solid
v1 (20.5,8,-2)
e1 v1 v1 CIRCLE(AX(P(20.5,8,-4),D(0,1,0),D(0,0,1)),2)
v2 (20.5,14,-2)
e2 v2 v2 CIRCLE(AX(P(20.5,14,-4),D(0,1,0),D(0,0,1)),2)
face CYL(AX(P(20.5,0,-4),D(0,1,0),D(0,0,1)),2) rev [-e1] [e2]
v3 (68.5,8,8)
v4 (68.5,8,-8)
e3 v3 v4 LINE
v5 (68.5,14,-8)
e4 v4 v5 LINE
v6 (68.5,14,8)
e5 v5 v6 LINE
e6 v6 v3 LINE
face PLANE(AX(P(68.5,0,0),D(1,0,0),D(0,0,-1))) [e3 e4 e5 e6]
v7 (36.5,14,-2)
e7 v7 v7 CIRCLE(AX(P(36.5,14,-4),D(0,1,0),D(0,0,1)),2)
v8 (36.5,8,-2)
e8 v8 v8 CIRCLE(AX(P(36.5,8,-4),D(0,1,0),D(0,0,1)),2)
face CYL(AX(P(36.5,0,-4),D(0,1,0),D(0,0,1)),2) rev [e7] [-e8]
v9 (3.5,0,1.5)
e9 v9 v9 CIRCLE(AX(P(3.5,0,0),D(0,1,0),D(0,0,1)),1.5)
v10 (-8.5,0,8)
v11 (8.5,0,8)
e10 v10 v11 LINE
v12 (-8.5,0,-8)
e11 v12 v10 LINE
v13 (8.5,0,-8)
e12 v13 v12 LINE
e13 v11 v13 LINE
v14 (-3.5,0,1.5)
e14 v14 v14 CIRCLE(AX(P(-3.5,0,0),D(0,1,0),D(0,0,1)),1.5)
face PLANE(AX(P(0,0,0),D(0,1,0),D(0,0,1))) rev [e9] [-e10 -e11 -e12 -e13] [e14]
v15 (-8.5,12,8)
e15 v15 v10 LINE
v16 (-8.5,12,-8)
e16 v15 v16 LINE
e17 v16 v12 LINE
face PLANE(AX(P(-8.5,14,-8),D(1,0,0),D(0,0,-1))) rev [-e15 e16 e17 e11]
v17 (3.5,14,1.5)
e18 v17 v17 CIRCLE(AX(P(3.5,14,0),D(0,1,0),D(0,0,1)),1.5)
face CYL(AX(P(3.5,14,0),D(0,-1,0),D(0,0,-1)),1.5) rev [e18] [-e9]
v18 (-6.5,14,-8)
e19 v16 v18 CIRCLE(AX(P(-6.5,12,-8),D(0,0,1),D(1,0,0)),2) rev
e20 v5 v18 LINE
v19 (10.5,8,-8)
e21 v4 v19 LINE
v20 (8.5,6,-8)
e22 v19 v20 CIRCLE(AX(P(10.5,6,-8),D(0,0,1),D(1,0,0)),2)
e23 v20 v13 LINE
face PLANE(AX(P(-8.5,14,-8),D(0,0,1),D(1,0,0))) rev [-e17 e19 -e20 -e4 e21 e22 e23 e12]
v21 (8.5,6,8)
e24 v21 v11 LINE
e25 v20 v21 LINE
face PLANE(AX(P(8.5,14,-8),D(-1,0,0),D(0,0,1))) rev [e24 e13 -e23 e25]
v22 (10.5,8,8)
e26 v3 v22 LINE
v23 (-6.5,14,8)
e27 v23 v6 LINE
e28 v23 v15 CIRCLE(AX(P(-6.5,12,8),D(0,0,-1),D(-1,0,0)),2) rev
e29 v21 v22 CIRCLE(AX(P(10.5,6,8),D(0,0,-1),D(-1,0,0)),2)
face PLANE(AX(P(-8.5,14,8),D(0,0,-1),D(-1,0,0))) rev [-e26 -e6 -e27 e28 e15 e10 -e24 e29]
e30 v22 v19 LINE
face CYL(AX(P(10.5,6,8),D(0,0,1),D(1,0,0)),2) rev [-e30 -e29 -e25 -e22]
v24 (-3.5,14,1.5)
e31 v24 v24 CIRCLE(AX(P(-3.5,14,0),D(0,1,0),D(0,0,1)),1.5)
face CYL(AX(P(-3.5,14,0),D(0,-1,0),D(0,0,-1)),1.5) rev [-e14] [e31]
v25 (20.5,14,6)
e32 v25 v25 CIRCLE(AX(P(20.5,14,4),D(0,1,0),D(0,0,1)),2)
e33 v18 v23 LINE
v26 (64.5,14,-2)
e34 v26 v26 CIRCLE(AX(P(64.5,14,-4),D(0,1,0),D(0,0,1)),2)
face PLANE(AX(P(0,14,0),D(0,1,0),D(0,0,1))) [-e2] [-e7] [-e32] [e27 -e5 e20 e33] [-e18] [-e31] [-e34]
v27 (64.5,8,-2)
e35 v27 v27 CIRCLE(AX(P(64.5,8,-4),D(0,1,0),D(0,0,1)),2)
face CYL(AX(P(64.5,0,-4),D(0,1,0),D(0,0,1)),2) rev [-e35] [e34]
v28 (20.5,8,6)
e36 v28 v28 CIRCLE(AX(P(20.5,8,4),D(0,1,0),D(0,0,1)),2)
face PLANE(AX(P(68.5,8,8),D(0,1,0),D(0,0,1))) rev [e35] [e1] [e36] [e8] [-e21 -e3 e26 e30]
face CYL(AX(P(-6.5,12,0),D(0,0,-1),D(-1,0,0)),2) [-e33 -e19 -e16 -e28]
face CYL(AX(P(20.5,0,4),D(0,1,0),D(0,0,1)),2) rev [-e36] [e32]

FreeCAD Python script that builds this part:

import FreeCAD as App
import Part
import Sketcher
Q = App.Units.Quantity


def edges_at(feature, points):
    """Names of the edges that pass closest to the given points."""
    edges = feature.Shape.Edges
    near = lambda p: min(range(len(edges)), key=lambda i: edges[i].distToShape(Part.Vertex(*p))[0])
    return sorted({f"Edge{near(p) + 1}" for p in points})

doc = App.newDocument("Part")
params = doc.addObject("Spreadsheet::Sheet", "Params")
for row, (alias, value) in enumerate([
    ("sketch1_diameter", "3 mm"),
    ("sketch1_width", "17 mm"),
    ("sketch1_height", "16 mm"),
    ("pad1_length", "14 mm"),
    ("sketch2_width", "6 mm"),
    ("sketch2_height", "16 mm"),
    ("pad2_length", "60 mm"),
    ("sketch3_diameter", "4 mm"),
    ("fillet_radius", "2 mm"),
    ("fillet2_radius", "2 mm"),
], start=1):
    params.set(f"A{row}", alias)
    params.set(f"B{row}", "=" + value)
    params.setAlias(f"B{row}", alias)

body = doc.addObject("PartDesign::Body", "Body")

# Sketch on XZ plane
sketch1 = doc.addObject("Sketcher::SketchObject", "Sketch")
body.addObject(sketch1)
sketch1.AttachmentSupport = (doc.XZ_Plane, [""])
sketch1.MapMode = "FlatFace"
sketch1.addGeometry([
    Part.LineSegment(App.Vector(-8.5, -8, 0), App.Vector(-8.5, 8, 0)),  # 0
    Part.LineSegment(App.Vector(-8.5, 8, 0), App.Vector(8.5, 8, 0)),  # 1
    Part.LineSegment(App.Vector(8.5, 8, 0), App.Vector(8.5, -8, 0)),  # 2
    Part.LineSegment(App.Vector(8.5, -8, 0), App.Vector(-8.5, -8, 0)),  # 3
    Part.Circle(App.Vector(-3.5, 0, 0), App.Vector(0, 0, 1), 1.5),  # 4
    Part.Circle(App.Vector(3.5, 0, 0), App.Vector(0, 0, 1), 1.5),  # 5
], False)
sketch1.addConstraint([
    Sketcher.Constraint("Coincident", 0, 2, 1, 1),
    Sketcher.Constraint("Coincident", 1, 2, 2, 1),
    Sketcher.Constraint("Coincident", 2, 2, 3, 1),
    Sketcher.Constraint("Coincident", 3, 2, 0, 1),
    Sketcher.Constraint("Vertical", 0),
    Sketcher.Constraint("Horizontal", 1),
    Sketcher.Constraint("Vertical", 2),
    Sketcher.Constraint("Horizontal", 3),
    Sketcher.Constraint("Equal", 4, 5),
    Sketcher.Constraint("Symmetric", 4, 3, 5, 3, -1, 1),
    Sketcher.Constraint("Symmetric", 0, 2, 2, 2, -1, 1),
    Sketcher.Constraint("PointOnObject", 4, 3, -1),
    Sketcher.Constraint("Diameter", 4, Q("3 mm")),
    Sketcher.Constraint("DistanceX", 1, 1, 1, 2, Q("17 mm")),
    Sketcher.Constraint("DistanceY", 0, 1, 0, 2, Q("16 mm")),
    Sketcher.Constraint("DistanceX", 4, 3, 5, 3, Q("7 mm")),
])
sketch1.setExpression("Constraints[12]", "Params.sketch1_diameter")
sketch1.setExpression("Constraints[13]", "Params.sketch1_width")
sketch1.setExpression("Constraints[14]", "Params.sketch1_height")
pad1 = doc.addObject("PartDesign::Pad", "Pad")
body.addObject(pad1)
pad1.Profile = sketch1
pad1.setExpression("Length", "Params.pad1_length")
pad1.Reversed = True

# Sketch on YZ plane
sketch2 = doc.addObject("Sketcher::SketchObject", "Sketch001")
body.addObject(sketch2)
sketch2.AttachmentSupport = (doc.YZ_Plane, [""])
sketch2.MapMode = "FlatFace"
sketch2.AttachmentOffset = App.Placement(App.Vector(0, 0, 8.5), App.Rotation())
sketch2.addGeometry([
    Part.LineSegment(App.Vector(14, 8, 0), App.Vector(8, 8, 0)),
    Part.LineSegment(App.Vector(8, 8, 0), App.Vector(8, -8, 0)),
    Part.LineSegment(App.Vector(8, -8, 0), App.Vector(14, -8, 0)),
    Part.LineSegment(App.Vector(14, -8, 0), App.Vector(14, 8, 0)),
], False)
sketch2.addConstraint([
    Sketcher.Constraint("Coincident", 0, 2, 1, 1),
    Sketcher.Constraint("Coincident", 1, 2, 2, 1),
    Sketcher.Constraint("Coincident", 2, 2, 3, 1),
    Sketcher.Constraint("Coincident", 3, 2, 0, 1),
    Sketcher.Constraint("Horizontal", 0),
    Sketcher.Constraint("Vertical", 1),
    Sketcher.Constraint("Horizontal", 2),
    Sketcher.Constraint("Vertical", 3),
    Sketcher.Constraint("DistanceX", 0, 2, 0, 1, Q("6 mm")),
    Sketcher.Constraint("DistanceY", 1, 2, 1, 1, Q("16 mm")),
    Sketcher.Constraint("DistanceX", -1, 1, 0, 2, Q("8 mm")),
    Sketcher.Constraint("DistanceY", -1, 1, 0, 2, Q("8 mm")),
])
sketch2.setExpression("Constraints[8]", "Params.sketch2_width")
sketch2.setExpression("Constraints[9]", "Params.sketch2_height")
pad2 = doc.addObject("PartDesign::Pad", "Pad001")
body.addObject(pad2)
pad2.Profile = sketch2
pad2.setExpression("Length", "Params.pad2_length")

# Sketch on XZ plane
sketch3 = doc.addObject("Sketcher::SketchObject", "Sketch002")
body.addObject(sketch3)
sketch3.AttachmentSupport = (doc.XZ_Plane, [""])
sketch3.MapMode = "FlatFace"
sketch3.AttachmentOffset = App.Placement(App.Vector(0, 0, -14), App.Rotation())
sketch3.addGeometry([
    Part.Circle(App.Vector(36.5, -4, 0), App.Vector(0, 0, 1), 2),
    Part.Circle(App.Vector(64.5, -4, 0), App.Vector(0, 0, 1), 2),
    Part.Circle(App.Vector(20.5, -4, 0), App.Vector(0, 0, 1), 2),
    Part.Circle(App.Vector(20.5, 4, 0), App.Vector(0, 0, 1), 2),
], False)
sketch3.addConstraint([
    Sketcher.Constraint("Equal", 0, 1),
    Sketcher.Constraint("Equal", 1, 2),
    Sketcher.Constraint("Equal", 2, 3),
    Sketcher.Constraint("Symmetric", 2, 3, 3, 3, -1),
    Sketcher.Constraint("Horizontal", 0, 3, 1, 3),
    Sketcher.Constraint("Horizontal", 1, 3, 2, 3),
    Sketcher.Constraint("Diameter", 0, Q("4 mm")),
    Sketcher.Constraint("DistanceY", 0, 3, -1, 1, Q("4 mm")),
    Sketcher.Constraint("DistanceX", 0, 3, 1, 3, Q("28 mm")),
    Sketcher.Constraint("DistanceX", 2, 3, 0, 3, Q("16 mm")),
    Sketcher.Constraint("DistanceX", -1, 1, 0, 3, Q("36.5 mm")),
])
sketch3.setExpression("Constraints[6]", "Params.sketch3_diameter")
pocket1 = doc.addObject("PartDesign::Pocket", "Pocket")
body.addObject(pocket1)
pocket1.Profile = sketch3
pocket1.Type = "ThroughAll"
pocket1.Reversed = True
doc.recompute()

fillet = doc.addObject("PartDesign::Fillet", "Fillet")
body.addObject(fillet)
fillet.Base = (pocket1, edges_at(pocket1, [(8.5, 8, 0)]))
fillet.setExpression("Radius", "Params.fillet_radius")
doc.recompute()

fillet2 = doc.addObject("PartDesign::Fillet", "Fillet001")
body.addObject(fillet2)
fillet2.Base = (fillet, edges_at(fillet, [(-8.5, 14, 0)]))
fillet2.setExpression("Radius", "Params.fillet2_radius")

doc.recompute()
